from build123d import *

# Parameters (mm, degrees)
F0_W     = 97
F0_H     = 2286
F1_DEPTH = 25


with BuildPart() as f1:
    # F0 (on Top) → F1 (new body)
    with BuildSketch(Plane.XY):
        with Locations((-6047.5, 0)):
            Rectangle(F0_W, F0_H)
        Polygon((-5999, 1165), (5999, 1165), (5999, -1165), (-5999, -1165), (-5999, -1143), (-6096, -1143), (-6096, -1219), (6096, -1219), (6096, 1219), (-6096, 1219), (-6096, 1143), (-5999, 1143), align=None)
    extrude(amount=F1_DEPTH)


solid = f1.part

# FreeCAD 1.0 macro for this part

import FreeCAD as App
import Part
import Sketcher
from FreeCAD import Vector


def add_polygon(sketch, points):
    """Adds a closed chain of lines whose ends are joined by coincident constraints."""
    first, n = sketch.GeometryCount, len(points)
    for a, b in zip(points, points[1:] + points[:1]):
        sketch.addGeometry(Part.LineSegment(App.Vector(*a, 0), App.Vector(*b, 0)), False)
    for i in range(n):
        sketch.addConstraint(Sketcher.Constraint("Coincident", first + i, 2, first + (i + 1) % n, 1))

doc = App.newDocument("Part")
body = doc.addObject("PartDesign::Body", "Body")

# Sketch on XY plane
sketch1 = body.newObject("Sketcher::SketchObject", "Sketch")
sketch1.AttachmentSupport = (doc.getObject("XY_Plane"), [""])
sketch1.MapMode = "FlatFace"
add_polygon(sketch1, [(-6096, -1219), (6096, -1219), (6096, 1219), (-6096, 1219)])  # lines 0-3
add_polygon(sketch1, [(-5999, 1165), (5999, 1165), (5999, -1165), (-5999, -1165)])  # lines 4-7
sketch1.addConstraint([
    Sketcher.Constraint("Horizontal", 0),
    Sketcher.Constraint("Vertical", 1),
    Sketcher.Constraint("Horizontal", 2),
    Sketcher.Constraint("Vertical", 3),
    Sketcher.Constraint("Horizontal", 4),
    Sketcher.Constraint("Vertical", 5),
    Sketcher.Constraint("Horizontal", 6),
    Sketcher.Constraint("Vertical", 7),
    Sketcher.Constraint("Symmetric", 0, 2, 2, 2, -1, 1),
    Sketcher.Constraint("Symmetric", 4, 2, 6, 2, -1, 1),
    Sketcher.Constraint("DistanceX", 0, 1, 0, 2, 12192.0),
    Sketcher.Constraint("DistanceX", 4, 1, 4, 2, 11998.0),
    Sketcher.Constraint("DistanceY", 1, 1, 1, 2, 2438.0),
    Sketcher.Constraint("DistanceY", 5, 2, 5, 1, 2330.0),
])
pad1 = body.newObject("PartDesign::Pad", "Pad")
pad1.Profile = sketch1
pad1.Length = 25

doc.recompute()
